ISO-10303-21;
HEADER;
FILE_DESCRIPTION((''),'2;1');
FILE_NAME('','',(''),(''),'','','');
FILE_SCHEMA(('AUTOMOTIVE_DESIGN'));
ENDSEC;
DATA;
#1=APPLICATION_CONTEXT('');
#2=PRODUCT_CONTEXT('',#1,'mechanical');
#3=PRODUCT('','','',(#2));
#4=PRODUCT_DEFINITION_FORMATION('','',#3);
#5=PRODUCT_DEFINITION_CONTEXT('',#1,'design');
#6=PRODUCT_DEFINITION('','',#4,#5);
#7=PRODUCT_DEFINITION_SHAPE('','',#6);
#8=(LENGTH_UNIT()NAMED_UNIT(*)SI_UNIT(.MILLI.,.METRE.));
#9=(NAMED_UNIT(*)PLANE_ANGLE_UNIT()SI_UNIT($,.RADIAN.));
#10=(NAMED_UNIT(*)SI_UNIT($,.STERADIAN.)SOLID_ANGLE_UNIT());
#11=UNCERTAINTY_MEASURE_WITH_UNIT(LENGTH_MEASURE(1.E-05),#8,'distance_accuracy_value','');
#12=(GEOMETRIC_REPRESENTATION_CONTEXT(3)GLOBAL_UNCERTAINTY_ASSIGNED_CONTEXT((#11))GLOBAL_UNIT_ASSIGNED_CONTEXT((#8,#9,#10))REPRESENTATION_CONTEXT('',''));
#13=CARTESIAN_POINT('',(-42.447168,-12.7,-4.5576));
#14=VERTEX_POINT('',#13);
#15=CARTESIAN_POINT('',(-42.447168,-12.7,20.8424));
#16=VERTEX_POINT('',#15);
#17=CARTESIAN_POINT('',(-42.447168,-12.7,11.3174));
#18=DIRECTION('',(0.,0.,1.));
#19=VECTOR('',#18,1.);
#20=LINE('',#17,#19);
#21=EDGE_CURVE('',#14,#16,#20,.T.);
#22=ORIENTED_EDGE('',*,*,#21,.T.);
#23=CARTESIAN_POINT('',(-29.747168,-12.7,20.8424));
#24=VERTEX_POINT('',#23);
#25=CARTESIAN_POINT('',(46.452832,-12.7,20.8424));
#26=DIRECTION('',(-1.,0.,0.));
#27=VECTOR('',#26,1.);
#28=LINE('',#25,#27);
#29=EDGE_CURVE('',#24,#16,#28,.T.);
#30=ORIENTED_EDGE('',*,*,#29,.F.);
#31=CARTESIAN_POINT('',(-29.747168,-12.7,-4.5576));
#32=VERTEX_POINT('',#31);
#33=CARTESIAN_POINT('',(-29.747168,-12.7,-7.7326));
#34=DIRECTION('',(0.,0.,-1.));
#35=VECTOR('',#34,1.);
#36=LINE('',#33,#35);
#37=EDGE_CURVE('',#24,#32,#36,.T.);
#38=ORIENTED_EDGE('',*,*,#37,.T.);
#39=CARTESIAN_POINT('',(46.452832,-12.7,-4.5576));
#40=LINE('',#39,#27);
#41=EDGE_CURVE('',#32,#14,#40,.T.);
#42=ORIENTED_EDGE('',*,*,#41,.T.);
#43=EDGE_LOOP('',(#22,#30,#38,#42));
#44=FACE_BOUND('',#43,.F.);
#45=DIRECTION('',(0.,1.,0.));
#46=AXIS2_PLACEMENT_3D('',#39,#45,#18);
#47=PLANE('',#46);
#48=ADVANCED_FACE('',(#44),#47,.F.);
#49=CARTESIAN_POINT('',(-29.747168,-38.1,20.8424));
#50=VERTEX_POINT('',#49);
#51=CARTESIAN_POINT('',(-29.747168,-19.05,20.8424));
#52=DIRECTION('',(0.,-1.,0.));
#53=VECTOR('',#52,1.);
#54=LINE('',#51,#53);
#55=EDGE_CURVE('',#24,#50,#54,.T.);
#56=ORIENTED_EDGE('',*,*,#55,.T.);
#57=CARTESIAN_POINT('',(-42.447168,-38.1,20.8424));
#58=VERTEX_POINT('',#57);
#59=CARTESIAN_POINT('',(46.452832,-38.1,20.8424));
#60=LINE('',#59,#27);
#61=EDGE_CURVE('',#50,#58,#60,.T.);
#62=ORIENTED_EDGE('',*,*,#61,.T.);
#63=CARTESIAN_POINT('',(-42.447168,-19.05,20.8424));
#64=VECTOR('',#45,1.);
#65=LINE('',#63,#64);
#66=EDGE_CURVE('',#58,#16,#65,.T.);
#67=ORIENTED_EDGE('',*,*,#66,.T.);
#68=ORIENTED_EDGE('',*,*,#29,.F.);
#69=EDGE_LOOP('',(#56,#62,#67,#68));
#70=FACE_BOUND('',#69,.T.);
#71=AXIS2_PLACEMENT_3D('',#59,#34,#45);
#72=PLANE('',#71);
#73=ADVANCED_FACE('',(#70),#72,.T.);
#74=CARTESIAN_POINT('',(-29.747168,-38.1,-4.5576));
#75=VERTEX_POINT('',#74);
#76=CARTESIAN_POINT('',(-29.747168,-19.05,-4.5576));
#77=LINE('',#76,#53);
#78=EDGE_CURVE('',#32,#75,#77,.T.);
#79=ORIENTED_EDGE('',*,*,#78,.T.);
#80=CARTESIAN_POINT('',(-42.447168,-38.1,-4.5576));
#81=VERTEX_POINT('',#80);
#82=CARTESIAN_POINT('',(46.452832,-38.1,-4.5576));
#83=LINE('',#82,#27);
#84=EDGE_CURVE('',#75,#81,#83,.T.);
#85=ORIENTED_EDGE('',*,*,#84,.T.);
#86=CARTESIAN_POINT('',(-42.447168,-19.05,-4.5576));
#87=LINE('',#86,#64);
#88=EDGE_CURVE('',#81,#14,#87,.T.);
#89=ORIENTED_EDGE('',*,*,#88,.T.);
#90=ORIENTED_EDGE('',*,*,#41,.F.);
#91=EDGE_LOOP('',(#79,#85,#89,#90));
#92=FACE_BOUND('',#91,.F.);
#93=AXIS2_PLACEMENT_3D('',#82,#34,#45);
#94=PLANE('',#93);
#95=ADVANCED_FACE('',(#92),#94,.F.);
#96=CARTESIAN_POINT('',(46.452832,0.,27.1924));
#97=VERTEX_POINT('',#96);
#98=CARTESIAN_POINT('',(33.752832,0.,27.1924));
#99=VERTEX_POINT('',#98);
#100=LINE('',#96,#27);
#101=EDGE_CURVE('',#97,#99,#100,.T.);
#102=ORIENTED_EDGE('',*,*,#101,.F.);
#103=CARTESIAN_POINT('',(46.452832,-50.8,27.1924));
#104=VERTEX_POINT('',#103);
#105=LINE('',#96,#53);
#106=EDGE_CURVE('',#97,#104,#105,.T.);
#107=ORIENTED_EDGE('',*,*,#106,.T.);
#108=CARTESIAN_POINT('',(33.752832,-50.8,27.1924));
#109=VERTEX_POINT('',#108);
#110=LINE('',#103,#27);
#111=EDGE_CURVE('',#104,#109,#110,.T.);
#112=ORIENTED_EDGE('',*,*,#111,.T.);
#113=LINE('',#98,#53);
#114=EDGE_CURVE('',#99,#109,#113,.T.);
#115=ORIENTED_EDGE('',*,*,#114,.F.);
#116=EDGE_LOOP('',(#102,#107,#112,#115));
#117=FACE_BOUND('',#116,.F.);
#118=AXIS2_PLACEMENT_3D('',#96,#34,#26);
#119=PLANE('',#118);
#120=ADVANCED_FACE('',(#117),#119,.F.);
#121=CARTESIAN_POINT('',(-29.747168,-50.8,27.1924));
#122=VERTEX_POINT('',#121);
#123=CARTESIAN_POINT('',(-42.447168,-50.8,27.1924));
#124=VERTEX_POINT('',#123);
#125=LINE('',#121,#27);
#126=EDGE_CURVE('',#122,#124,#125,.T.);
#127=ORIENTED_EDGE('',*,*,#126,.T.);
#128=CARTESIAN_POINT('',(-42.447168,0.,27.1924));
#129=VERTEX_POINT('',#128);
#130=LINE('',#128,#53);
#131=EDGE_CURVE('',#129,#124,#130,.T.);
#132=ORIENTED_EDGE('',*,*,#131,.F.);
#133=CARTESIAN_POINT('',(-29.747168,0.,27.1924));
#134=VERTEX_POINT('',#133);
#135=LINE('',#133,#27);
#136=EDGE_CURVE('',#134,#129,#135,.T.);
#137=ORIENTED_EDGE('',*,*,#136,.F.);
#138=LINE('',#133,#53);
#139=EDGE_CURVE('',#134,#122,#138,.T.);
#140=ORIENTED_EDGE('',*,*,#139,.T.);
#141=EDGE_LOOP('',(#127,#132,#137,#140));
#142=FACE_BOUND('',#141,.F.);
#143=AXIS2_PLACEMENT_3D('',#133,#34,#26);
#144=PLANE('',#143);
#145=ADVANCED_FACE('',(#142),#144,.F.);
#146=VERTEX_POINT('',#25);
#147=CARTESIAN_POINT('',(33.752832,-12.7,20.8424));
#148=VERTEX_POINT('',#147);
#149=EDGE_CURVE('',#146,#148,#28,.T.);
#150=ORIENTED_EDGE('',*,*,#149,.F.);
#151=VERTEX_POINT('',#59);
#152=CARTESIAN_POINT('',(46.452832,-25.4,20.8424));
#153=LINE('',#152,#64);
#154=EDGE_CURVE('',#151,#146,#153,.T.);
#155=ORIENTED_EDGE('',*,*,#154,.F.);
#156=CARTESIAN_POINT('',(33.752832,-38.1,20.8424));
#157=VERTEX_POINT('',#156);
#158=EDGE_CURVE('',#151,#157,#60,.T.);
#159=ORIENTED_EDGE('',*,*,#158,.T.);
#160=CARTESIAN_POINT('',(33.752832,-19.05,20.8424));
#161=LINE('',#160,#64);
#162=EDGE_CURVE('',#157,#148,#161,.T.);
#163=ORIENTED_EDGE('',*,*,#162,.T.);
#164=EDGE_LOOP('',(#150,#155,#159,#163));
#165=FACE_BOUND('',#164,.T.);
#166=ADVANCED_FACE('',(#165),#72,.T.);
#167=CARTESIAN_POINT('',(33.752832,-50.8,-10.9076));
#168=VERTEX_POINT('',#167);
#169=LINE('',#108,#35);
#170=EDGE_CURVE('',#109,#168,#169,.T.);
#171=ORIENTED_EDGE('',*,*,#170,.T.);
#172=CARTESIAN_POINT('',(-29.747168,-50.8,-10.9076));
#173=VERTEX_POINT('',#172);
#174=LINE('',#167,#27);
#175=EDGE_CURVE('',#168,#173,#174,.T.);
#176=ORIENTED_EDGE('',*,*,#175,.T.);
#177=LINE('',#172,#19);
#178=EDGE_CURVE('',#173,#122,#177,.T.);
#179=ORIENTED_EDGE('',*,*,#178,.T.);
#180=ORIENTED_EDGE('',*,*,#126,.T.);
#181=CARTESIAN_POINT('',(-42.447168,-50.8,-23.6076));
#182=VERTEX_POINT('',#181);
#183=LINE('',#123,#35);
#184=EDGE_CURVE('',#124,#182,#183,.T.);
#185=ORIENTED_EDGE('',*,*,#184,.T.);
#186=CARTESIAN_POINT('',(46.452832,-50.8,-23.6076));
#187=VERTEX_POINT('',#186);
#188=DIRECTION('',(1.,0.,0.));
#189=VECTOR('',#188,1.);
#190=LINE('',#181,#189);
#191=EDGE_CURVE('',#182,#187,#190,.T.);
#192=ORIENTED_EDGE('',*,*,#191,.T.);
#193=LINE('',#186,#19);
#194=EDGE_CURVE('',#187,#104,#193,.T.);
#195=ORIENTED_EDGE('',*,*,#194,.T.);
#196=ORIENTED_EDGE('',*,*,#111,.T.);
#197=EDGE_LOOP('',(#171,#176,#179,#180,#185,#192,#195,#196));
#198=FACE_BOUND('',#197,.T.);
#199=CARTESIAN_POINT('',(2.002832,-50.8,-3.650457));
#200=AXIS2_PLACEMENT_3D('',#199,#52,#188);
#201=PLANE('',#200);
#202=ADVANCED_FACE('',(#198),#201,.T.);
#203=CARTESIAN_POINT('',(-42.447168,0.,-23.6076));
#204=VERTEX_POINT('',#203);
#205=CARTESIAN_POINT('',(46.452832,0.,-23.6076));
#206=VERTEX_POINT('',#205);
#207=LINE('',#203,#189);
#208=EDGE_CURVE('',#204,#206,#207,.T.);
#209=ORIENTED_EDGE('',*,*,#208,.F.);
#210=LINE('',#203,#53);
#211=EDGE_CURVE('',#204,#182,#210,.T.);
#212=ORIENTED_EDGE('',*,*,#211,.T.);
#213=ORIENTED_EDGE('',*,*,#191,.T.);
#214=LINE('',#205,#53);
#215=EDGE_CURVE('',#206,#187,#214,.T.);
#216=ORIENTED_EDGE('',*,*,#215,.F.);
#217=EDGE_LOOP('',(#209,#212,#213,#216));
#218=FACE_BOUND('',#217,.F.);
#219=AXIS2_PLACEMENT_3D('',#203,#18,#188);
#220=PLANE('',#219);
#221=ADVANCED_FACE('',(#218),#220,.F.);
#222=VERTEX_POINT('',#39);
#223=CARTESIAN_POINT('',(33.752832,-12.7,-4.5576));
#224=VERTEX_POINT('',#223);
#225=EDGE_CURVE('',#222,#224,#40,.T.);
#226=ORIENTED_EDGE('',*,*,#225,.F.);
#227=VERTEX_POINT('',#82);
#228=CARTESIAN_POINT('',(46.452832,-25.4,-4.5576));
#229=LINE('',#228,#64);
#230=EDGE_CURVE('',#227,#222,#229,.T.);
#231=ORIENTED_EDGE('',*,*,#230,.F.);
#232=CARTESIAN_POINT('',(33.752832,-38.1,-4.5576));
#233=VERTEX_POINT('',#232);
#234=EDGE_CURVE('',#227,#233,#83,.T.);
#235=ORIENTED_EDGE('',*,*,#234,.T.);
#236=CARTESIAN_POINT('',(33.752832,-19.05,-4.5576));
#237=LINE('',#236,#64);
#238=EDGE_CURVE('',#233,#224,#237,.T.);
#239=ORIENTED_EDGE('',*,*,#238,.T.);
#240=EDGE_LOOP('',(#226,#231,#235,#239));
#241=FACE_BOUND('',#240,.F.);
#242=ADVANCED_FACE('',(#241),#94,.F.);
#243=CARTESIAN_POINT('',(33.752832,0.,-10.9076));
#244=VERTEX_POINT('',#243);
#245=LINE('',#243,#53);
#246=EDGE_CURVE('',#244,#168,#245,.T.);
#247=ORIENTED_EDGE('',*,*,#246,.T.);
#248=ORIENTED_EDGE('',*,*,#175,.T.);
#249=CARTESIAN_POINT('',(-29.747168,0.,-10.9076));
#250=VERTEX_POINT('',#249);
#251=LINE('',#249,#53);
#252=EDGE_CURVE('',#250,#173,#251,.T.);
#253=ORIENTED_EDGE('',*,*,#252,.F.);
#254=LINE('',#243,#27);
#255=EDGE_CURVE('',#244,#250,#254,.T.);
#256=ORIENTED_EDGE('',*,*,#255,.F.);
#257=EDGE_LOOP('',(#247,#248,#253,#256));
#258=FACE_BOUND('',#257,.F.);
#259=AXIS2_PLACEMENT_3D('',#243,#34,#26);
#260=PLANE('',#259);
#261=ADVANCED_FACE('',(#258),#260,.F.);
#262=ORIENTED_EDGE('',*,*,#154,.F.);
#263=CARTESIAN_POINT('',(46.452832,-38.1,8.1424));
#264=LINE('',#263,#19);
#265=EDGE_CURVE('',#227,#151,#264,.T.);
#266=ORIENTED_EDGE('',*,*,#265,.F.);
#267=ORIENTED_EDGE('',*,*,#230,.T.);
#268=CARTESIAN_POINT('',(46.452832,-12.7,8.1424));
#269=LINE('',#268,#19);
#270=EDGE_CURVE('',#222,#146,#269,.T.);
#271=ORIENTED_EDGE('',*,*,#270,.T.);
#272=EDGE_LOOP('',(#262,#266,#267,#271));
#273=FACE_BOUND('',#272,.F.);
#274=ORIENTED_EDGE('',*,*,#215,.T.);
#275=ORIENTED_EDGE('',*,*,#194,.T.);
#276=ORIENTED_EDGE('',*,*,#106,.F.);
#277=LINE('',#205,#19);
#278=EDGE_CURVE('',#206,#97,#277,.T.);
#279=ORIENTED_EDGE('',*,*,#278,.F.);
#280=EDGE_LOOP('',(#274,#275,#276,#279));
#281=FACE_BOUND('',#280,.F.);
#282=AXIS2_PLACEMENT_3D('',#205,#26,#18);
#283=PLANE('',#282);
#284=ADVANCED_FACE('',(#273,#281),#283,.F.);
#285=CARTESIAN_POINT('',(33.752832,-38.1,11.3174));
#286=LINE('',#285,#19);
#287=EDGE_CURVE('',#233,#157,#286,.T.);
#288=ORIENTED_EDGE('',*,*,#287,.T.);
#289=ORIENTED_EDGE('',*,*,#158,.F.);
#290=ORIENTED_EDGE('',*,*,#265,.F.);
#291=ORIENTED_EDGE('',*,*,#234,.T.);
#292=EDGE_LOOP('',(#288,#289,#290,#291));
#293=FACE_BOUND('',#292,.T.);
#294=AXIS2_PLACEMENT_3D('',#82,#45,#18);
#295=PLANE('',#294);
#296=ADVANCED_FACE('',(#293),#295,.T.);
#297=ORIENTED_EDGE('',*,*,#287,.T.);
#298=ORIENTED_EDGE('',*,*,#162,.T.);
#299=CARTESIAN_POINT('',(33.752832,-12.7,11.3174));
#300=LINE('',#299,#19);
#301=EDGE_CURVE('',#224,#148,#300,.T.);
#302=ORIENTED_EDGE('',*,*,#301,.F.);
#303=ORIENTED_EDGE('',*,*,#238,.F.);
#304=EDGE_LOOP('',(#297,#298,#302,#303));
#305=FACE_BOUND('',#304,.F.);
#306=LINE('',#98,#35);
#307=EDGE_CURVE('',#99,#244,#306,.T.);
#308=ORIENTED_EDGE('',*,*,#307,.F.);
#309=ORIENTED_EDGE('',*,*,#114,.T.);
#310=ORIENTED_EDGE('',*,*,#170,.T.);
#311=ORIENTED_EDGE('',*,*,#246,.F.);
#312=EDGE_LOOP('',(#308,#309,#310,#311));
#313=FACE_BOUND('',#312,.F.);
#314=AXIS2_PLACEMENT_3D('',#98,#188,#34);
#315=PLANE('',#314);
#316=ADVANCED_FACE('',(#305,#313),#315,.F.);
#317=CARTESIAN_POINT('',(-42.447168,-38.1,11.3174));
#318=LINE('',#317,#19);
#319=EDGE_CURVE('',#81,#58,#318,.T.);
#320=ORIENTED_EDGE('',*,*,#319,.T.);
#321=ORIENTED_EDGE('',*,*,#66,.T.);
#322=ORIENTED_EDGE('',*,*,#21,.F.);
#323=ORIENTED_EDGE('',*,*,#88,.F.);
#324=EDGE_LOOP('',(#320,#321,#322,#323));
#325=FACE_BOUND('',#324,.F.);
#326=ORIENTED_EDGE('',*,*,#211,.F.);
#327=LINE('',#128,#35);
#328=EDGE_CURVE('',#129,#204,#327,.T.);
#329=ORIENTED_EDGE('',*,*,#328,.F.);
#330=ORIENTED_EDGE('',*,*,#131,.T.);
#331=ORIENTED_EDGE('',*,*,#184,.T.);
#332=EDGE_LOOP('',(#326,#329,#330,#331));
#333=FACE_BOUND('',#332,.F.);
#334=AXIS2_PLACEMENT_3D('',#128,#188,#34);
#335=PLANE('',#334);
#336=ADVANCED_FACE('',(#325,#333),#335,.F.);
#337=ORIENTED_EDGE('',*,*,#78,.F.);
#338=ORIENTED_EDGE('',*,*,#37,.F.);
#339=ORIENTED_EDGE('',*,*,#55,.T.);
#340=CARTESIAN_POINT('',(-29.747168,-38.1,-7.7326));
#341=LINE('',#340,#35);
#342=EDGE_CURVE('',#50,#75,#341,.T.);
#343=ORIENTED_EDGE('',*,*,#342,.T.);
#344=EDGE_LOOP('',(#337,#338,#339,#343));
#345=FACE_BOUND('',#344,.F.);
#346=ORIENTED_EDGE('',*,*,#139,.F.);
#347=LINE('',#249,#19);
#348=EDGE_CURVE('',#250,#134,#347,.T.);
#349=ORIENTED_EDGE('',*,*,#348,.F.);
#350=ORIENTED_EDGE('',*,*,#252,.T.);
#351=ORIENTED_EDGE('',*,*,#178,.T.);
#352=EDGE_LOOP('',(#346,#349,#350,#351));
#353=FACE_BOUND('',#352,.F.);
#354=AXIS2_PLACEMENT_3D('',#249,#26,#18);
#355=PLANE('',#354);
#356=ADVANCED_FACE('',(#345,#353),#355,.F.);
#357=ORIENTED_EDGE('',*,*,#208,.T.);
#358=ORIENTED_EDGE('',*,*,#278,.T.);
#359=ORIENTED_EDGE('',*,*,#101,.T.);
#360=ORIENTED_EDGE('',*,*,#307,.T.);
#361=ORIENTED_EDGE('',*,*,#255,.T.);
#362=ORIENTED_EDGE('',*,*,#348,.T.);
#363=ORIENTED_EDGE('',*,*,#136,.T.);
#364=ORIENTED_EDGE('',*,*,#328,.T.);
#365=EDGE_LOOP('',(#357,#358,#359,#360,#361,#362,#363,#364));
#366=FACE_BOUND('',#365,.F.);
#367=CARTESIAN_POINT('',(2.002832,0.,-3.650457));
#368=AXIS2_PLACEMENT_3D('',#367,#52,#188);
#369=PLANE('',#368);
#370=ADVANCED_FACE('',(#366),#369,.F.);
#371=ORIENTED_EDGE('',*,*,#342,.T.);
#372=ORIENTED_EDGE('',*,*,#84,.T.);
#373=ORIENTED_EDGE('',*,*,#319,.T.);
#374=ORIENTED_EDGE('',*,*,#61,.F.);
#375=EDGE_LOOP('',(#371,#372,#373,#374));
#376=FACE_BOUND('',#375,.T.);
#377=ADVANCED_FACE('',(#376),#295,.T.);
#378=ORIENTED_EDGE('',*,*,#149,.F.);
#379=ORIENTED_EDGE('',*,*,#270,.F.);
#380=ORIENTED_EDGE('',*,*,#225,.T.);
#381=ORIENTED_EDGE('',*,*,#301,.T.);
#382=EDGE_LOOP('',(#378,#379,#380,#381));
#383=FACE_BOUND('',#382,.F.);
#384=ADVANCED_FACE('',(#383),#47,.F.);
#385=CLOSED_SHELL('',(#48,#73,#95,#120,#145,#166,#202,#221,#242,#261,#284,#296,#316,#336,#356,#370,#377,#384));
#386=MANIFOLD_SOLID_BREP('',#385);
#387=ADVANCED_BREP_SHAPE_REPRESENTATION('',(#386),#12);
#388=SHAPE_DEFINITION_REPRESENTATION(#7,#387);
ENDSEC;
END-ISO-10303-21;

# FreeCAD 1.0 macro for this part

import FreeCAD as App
import Part
import Sketcher
from FreeCAD import Vector
Q = App.Units.Quantity


def add_polygon(sketch, points):
    """Adds a closed chain of lines whose ends are joined by coincident constraints."""
    first, n = sketch.GeometryCount, len(points)
    for a, b in zip(points, points[1:] + points[:1]):
        sketch.addGeometry(Part.LineSegment(App.Vector(*a, 0), App.Vector(*b, 0)), False)
    for i in range(n):
        sketch.addConstraint(Sketcher.Constraint("Coincident", first + i, 2, first + (i + 1) % n, 1))

doc = App.newDocument("Part")
params = doc.addObject("Spreadsheet::Sheet", "Params")
for row, (alias, value) in enumerate([
    ("sketch1_height", "2 in"),
    ("sketch1_width", "0.5 in"),
    ("sketch1_width2", "3.5 in"),
    ("sketch1_height2", "1.5 in"),
    ("pad1_length", "2 in"),
    ("sketch2_width", "1 in"),
], start=1):
    params.set(f"A{row}", alias)
    params.set(f"B{row}", "=" + value)
    params.setAlias(f"B{row}", alias)

body = doc.addObject("PartDesign::Body", "Body")

sketch1 = body.newObject("Sketcher::SketchObject", "Sketch")
sketch1.AttachmentSupport = (doc.getObject("XZ_Plane"), [""])
sketch1.MapMode = "FlatFace"
add_polygon(sketch1, [(-29.747168, 27.1924), (-42.447168, 27.1924), (-42.447168, -23.6076), (46.452832, -23.6076), (46.452832, 27.1924), (33.752832, 27.1924), (33.752832, -10.9076), (-29.747168, -10.9076)])
sketch1.addConstraint(Sketcher.Constraint("Horizontal", 0))
sketch1.addConstraint(Sketcher.Constraint("Vertical", 1))
sketch1.addConstraint(Sketcher.Constraint("Horizontal", 2))
sketch1.addConstraint(Sketcher.Constraint("Vertical", 3))
sketch1.addConstraint(Sketcher.Constraint("Horizontal", 4))
sketch1.addConstraint(Sketcher.Constraint("Vertical", 5))
sketch1.addConstraint(Sketcher.Constraint("Horizontal", 6))
sketch1.addConstraint(Sketcher.Constraint("Vertical", 7))
sketch1.addConstraint(Sketcher.Constraint("Horizontal", 0, 2, 3, 2))
sketch1.addConstraint(Sketcher.Constraint("Equal", 0, 4))
sketch1.addConstraint(Sketcher.Constraint("DistanceY", 1, 2, 1, 1, Q("2 in")))
sketch1.addConstraint(Sketcher.Constraint("DistanceX", 0, 2, 0, 1, Q("0.5 in")))
sketch1.addConstraint(Sketcher.Constraint("DistanceX", 2, 1, 2, 2, Q("3.5 in")))
sketch1.addConstraint(Sketcher.Constraint("DistanceY", 5, 2, 5, 1, Q("1.5 in")))
sketch1.addConstraint(Sketcher.Constraint("DistanceY", -1, 1, 0, 2, Q("27.1924 mm")))
sketch1.addConstraint(Sketcher.Constraint("DistanceX", -1, 1, 4, 2, Q("33.752832 mm")))
sketch1.setExpression("Constraints[18]", "Params.sketch1_height")
sketch1.setExpression("Constraints[19]", "Params.sketch1_width")
sketch1.setExpression("Constraints[20]", "Params.sketch1_width2")
sketch1.setExpression("Constraints[21]", "Params.sketch1_height2")
pad1 = body.newObject("PartDesign::Pad", "Pad")
pad1.Profile = sketch1
pad1.setExpression("Length", "Params.pad1_length")

sketch2 = body.newObject("Sketcher::SketchObject", "Sketch001")
sketch2.AttachmentSupport = (doc.getObject("YZ_Plane"), [""])
sketch2.MapMode = "FlatFace"
sketch2.AttachmentOffset = App.Placement(Vector(0, 0, 46.452832), App.Rotation())
add_polygon(sketch2, [(-38.1, 20.8424), (-38.1, -4.5576), (-12.7, -4.5576), (-12.7, 20.8424)])
sketch2.addConstraint(Sketcher.Constraint("Vertical", 0))
sketch2.addConstraint(Sketcher.Constraint("Horizontal", 1))
sketch2.addConstraint(Sketcher.Constraint("Vertical", 2))
sketch2.addConstraint(Sketcher.Constraint("Horizontal", 3))
sketch2.addConstraint(Sketcher.Constraint("Equal", 3, 0))
sketch2.addConstraint(Sketcher.Constraint("DistanceX", 1, 1, 1, 2, Q("1 in")))
sketch2.addConstraint(Sketcher.Constraint("DistanceX", 0, 2, -1, 1, Q("1.5 in")))
sketch2.addConstraint(Sketcher.Constraint("DistanceY", 0, 2, -1, 1, Q("4.5576 mm")))
sketch2.setExpression("Constraints[9]", "Params.sketch2_width")
pocket1 = body.newObject("PartDesign::Pocket", "Pocket")
pocket1.Profile = sketch2
pocket1.Type = "ThroughAll"

doc.recompute()
